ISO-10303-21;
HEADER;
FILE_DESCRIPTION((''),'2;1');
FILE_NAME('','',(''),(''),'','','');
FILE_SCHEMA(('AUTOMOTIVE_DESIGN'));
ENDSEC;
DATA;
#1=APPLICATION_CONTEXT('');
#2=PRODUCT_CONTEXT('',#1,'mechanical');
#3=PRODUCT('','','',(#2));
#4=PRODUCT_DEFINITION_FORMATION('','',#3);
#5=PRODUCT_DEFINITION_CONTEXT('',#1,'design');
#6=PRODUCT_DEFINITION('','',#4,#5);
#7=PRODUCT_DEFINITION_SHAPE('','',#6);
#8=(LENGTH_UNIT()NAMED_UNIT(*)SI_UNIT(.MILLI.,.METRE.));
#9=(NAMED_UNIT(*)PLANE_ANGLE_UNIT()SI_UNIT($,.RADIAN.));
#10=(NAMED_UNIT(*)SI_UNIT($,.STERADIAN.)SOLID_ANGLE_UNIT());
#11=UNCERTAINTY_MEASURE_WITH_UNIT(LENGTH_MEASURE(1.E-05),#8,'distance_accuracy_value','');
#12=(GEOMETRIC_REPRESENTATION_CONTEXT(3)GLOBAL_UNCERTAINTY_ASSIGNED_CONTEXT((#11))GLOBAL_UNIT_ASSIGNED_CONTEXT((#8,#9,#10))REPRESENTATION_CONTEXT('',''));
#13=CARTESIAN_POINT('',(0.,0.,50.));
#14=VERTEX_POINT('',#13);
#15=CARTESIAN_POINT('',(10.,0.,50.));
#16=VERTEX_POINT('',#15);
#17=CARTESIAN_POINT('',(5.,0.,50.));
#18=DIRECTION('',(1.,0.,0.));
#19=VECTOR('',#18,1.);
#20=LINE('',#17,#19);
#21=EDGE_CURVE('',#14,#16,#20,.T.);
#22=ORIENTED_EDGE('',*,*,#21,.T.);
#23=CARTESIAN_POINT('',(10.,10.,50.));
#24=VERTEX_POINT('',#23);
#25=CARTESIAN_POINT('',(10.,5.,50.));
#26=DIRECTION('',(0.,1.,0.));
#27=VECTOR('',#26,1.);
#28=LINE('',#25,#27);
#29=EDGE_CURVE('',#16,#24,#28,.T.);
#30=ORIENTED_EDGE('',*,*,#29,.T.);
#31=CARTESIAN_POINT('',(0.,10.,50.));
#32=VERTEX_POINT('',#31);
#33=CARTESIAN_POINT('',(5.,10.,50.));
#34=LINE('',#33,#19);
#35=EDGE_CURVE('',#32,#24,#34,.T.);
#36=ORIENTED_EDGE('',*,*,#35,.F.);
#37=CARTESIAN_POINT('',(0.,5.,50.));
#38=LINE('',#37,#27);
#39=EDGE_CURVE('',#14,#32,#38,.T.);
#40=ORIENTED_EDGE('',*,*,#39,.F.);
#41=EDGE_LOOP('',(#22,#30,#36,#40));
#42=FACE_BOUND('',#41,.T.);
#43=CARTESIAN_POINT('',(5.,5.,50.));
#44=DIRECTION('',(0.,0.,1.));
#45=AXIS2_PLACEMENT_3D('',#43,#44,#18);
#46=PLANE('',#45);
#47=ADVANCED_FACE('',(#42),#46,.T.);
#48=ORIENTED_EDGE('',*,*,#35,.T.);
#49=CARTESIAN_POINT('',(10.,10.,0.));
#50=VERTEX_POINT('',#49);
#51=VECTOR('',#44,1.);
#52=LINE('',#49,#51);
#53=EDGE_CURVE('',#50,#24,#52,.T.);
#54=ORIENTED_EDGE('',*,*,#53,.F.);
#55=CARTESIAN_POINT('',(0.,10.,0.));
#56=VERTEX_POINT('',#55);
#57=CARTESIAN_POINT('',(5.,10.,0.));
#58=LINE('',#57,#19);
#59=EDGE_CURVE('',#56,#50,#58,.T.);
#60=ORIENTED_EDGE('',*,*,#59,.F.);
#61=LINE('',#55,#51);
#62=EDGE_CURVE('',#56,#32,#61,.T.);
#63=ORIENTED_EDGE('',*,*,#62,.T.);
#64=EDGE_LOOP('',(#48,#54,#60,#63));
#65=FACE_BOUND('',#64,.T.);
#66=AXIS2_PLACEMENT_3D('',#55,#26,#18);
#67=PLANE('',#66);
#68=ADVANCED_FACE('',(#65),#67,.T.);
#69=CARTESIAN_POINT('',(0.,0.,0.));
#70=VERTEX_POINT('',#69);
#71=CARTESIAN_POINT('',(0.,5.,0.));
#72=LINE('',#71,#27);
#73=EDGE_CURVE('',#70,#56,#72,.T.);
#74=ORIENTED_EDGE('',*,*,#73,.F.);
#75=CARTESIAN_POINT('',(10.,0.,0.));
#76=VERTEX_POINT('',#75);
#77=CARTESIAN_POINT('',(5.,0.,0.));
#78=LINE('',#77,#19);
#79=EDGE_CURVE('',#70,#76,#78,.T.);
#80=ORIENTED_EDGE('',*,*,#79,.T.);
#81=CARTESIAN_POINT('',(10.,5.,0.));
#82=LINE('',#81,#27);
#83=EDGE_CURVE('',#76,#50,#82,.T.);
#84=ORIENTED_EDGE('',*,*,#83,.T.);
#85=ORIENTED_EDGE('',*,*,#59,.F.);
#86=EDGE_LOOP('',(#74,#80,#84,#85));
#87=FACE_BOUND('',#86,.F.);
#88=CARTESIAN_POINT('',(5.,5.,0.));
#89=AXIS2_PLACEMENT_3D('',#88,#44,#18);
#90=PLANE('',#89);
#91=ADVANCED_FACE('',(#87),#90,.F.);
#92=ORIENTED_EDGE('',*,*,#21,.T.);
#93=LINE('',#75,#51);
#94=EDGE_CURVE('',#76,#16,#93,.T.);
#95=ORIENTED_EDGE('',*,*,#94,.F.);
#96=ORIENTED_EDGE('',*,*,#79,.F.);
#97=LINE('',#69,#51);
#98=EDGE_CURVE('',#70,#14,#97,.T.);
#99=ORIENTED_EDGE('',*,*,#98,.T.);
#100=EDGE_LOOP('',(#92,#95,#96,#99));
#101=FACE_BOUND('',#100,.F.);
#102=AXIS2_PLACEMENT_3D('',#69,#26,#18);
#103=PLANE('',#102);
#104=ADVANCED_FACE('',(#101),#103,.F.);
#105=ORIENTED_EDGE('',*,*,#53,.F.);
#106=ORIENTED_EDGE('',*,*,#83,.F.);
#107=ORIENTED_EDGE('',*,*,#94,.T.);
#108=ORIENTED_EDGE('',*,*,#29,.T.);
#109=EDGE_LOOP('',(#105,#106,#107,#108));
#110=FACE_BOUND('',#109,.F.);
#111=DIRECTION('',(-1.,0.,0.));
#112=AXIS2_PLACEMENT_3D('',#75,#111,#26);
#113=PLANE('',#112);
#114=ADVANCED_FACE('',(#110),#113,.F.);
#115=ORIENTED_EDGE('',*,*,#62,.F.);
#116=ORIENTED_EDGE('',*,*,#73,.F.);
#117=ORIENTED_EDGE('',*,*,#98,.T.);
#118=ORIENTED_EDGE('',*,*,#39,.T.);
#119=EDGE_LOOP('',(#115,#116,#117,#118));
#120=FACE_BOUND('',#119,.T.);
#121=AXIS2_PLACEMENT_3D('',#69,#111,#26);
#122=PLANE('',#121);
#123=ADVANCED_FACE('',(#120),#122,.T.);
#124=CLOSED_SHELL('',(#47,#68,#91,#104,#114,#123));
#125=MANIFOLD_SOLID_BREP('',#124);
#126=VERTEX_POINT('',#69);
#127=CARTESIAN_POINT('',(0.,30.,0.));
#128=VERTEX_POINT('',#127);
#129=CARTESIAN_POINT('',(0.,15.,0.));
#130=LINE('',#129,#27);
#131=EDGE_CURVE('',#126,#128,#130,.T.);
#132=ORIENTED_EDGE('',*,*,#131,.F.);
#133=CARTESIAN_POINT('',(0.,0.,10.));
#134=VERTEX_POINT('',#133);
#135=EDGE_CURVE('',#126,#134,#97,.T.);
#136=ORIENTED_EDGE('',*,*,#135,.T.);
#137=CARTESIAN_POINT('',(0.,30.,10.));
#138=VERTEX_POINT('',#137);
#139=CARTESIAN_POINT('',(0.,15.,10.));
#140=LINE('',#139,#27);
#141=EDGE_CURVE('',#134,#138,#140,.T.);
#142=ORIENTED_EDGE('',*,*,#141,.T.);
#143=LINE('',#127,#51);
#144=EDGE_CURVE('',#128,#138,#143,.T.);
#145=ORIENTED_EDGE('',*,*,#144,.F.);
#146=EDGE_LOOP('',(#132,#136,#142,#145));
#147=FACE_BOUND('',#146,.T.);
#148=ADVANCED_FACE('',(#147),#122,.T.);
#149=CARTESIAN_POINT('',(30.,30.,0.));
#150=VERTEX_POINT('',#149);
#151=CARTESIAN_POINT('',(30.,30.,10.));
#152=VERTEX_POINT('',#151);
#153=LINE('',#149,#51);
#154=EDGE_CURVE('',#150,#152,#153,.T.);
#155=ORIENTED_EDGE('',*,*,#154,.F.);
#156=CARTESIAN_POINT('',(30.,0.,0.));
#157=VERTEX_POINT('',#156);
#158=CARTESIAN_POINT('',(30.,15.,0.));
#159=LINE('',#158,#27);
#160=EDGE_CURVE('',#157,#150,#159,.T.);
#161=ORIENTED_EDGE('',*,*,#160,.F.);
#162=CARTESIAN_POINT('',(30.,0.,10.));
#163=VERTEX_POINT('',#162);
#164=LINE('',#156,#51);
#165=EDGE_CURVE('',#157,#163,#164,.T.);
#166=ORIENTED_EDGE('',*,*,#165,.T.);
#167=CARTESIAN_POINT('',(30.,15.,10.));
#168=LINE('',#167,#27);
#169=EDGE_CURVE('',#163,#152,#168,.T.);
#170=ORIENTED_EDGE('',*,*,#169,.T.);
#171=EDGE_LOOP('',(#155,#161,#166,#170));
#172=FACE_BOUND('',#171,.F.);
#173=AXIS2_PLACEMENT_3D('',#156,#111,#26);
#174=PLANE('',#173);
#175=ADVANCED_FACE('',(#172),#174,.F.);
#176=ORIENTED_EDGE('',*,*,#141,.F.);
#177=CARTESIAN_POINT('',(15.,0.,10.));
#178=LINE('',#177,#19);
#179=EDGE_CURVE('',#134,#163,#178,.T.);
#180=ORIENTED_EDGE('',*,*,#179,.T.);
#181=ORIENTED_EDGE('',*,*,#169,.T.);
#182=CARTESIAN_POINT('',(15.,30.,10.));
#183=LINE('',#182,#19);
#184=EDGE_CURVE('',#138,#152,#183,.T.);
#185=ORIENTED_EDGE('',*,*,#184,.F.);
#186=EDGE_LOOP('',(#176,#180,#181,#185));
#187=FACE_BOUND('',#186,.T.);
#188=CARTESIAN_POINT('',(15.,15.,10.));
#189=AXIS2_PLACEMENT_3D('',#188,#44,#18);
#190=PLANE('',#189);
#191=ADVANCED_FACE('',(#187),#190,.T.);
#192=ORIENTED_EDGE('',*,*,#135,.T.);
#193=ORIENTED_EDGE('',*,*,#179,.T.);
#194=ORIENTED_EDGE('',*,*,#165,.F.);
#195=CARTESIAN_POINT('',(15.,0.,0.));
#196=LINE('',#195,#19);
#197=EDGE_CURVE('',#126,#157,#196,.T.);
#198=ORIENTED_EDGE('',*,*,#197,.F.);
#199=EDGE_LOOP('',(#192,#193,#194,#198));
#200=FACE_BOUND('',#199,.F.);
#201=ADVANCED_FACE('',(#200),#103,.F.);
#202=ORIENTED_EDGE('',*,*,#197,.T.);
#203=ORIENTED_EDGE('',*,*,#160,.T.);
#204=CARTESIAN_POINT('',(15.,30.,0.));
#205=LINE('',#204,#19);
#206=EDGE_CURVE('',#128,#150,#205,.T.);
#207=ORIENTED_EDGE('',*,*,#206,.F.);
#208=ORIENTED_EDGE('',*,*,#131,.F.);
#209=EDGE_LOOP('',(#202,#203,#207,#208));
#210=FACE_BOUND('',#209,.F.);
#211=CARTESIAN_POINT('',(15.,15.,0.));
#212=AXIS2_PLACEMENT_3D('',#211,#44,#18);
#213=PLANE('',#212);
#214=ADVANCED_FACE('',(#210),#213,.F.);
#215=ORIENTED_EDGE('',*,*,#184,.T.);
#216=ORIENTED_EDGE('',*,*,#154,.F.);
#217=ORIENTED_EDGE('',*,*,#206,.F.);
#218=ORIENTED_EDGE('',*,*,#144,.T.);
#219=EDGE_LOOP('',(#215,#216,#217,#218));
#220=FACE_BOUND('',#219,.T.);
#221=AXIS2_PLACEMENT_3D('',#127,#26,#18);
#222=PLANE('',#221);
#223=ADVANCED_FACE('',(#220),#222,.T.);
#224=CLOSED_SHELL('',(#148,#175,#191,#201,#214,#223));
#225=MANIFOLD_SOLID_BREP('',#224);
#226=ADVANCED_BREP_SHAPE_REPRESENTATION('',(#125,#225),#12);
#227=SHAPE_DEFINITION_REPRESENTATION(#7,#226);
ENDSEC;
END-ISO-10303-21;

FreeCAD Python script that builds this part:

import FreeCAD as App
import Part
import Sketcher

V = App.Vector

doc = App.newDocument("Part")
params = doc.addObject("Spreadsheet::Sheet", "Params")
for row, (alias, value) in enumerate([
    ("sketch1_width", "30 mm"),
    ("pad1_length", "10 mm"),
    ("sketch2_width", "10 mm"),
    ("pad2_length", "50 mm"),
], start=1):
    params.set(f"A{row}", alias)
    params.set(f"B{row}", "=" + value)
    params.setAlias(f"B{row}", alias)

body = doc.addObject("PartDesign::Body", "Body")

# Sketch on XY plane
sketch1 = body.newObject("Sketcher::SketchObject", "Sketch")
sketch1.AttachmentSupport = (doc.getObject("XY_Plane"), [""])
sketch1.MapMode = "FlatFace"
sketch1.addGeometry([
    Part.LineSegment(V(0, 30, 0), V(0, 0, 0)),
    Part.LineSegment(V(0, 0, 0), V(30, 0, 0)),
    Part.LineSegment(V(30, 0, 0), V(30, 30, 0)),
    Part.LineSegment(V(30, 30, 0), V(0, 30, 0)),
], False)
sketch1.addConstraint([
    Sketcher.Constraint("Coincident", 0, 2, 1, 1),
    Sketcher.Constraint("Coincident", 1, 2, 2, 1),
    Sketcher.Constraint("Coincident", 2, 2, 3, 1),
    Sketcher.Constraint("Coincident", 3, 2, 0, 1),
    Sketcher.Constraint("Vertical", 0),
    Sketcher.Constraint("Horizontal", 1),
    Sketcher.Constraint("Vertical", 2),
    Sketcher.Constraint("Horizontal", 3),
    Sketcher.Constraint("Coincident", 0, 2, -1, 1),
    Sketcher.Constraint("Equal", 3, 0),
    Sketcher.Constraint("DistanceX", 1, 1, 1, 2, 30.0),
])
sketch1.setExpression("Constraints[10]", "Params.sketch1_width")
pad1 = body.newObject("PartDesign::Pad", "Pad")
pad1.Profile = sketch1
pad1.setExpression("Length", "Params.pad1_length")
body2 = doc.addObject("PartDesign::Body", "Body001")

# Sketch on XY plane
sketch2 = body2.newObject("Sketcher::SketchObject", "Sketch001")
sketch2.AttachmentSupport = (doc.getObject("XY_Plane001"), [""])
sketch2.MapMode = "FlatFace"
sketch2.addGeometry([
    Part.LineSegment(V(0, 10, 0), V(0, 0, 0)),
    Part.LineSegment(V(0, 0, 0), V(10, 0, 0)),
    Part.LineSegment(V(10, 0, 0), V(10, 10, 0)),
    Part.LineSegment(V(10, 10, 0), V(0, 10, 0)),
], False)
sketch2.addConstraint([
    Sketcher.Constraint("Coincident", 0, 2, 1, 1),
    Sketcher.Constraint("Coincident", 1, 2, 2, 1),
    Sketcher.Constraint("Coincident", 2, 2, 3, 1),
    Sketcher.Constraint("Coincident", 3, 2, 0, 1),
    Sketcher.Constraint("Vertical", 0),
    Sketcher.Constraint("Horizontal", 1),
    Sketcher.Constraint("Vertical", 2),
    Sketcher.Constraint("Horizontal", 3),
    Sketcher.Constraint("Coincident", 0, 2, -1, 1),
    Sketcher.Constraint("Equal", 3, 0),
    Sketcher.Constraint("DistanceX", 1, 1, 1, 2, 10.0),
])
sketch2.setExpression("Constraints[10]", "Params.sketch2_width")
pad2 = body2.newObject("PartDesign::Pad", "Pad001")
pad2.Profile = sketch2
pad2.setExpression("Length", "Params.pad2_length")

doc.recompute()
